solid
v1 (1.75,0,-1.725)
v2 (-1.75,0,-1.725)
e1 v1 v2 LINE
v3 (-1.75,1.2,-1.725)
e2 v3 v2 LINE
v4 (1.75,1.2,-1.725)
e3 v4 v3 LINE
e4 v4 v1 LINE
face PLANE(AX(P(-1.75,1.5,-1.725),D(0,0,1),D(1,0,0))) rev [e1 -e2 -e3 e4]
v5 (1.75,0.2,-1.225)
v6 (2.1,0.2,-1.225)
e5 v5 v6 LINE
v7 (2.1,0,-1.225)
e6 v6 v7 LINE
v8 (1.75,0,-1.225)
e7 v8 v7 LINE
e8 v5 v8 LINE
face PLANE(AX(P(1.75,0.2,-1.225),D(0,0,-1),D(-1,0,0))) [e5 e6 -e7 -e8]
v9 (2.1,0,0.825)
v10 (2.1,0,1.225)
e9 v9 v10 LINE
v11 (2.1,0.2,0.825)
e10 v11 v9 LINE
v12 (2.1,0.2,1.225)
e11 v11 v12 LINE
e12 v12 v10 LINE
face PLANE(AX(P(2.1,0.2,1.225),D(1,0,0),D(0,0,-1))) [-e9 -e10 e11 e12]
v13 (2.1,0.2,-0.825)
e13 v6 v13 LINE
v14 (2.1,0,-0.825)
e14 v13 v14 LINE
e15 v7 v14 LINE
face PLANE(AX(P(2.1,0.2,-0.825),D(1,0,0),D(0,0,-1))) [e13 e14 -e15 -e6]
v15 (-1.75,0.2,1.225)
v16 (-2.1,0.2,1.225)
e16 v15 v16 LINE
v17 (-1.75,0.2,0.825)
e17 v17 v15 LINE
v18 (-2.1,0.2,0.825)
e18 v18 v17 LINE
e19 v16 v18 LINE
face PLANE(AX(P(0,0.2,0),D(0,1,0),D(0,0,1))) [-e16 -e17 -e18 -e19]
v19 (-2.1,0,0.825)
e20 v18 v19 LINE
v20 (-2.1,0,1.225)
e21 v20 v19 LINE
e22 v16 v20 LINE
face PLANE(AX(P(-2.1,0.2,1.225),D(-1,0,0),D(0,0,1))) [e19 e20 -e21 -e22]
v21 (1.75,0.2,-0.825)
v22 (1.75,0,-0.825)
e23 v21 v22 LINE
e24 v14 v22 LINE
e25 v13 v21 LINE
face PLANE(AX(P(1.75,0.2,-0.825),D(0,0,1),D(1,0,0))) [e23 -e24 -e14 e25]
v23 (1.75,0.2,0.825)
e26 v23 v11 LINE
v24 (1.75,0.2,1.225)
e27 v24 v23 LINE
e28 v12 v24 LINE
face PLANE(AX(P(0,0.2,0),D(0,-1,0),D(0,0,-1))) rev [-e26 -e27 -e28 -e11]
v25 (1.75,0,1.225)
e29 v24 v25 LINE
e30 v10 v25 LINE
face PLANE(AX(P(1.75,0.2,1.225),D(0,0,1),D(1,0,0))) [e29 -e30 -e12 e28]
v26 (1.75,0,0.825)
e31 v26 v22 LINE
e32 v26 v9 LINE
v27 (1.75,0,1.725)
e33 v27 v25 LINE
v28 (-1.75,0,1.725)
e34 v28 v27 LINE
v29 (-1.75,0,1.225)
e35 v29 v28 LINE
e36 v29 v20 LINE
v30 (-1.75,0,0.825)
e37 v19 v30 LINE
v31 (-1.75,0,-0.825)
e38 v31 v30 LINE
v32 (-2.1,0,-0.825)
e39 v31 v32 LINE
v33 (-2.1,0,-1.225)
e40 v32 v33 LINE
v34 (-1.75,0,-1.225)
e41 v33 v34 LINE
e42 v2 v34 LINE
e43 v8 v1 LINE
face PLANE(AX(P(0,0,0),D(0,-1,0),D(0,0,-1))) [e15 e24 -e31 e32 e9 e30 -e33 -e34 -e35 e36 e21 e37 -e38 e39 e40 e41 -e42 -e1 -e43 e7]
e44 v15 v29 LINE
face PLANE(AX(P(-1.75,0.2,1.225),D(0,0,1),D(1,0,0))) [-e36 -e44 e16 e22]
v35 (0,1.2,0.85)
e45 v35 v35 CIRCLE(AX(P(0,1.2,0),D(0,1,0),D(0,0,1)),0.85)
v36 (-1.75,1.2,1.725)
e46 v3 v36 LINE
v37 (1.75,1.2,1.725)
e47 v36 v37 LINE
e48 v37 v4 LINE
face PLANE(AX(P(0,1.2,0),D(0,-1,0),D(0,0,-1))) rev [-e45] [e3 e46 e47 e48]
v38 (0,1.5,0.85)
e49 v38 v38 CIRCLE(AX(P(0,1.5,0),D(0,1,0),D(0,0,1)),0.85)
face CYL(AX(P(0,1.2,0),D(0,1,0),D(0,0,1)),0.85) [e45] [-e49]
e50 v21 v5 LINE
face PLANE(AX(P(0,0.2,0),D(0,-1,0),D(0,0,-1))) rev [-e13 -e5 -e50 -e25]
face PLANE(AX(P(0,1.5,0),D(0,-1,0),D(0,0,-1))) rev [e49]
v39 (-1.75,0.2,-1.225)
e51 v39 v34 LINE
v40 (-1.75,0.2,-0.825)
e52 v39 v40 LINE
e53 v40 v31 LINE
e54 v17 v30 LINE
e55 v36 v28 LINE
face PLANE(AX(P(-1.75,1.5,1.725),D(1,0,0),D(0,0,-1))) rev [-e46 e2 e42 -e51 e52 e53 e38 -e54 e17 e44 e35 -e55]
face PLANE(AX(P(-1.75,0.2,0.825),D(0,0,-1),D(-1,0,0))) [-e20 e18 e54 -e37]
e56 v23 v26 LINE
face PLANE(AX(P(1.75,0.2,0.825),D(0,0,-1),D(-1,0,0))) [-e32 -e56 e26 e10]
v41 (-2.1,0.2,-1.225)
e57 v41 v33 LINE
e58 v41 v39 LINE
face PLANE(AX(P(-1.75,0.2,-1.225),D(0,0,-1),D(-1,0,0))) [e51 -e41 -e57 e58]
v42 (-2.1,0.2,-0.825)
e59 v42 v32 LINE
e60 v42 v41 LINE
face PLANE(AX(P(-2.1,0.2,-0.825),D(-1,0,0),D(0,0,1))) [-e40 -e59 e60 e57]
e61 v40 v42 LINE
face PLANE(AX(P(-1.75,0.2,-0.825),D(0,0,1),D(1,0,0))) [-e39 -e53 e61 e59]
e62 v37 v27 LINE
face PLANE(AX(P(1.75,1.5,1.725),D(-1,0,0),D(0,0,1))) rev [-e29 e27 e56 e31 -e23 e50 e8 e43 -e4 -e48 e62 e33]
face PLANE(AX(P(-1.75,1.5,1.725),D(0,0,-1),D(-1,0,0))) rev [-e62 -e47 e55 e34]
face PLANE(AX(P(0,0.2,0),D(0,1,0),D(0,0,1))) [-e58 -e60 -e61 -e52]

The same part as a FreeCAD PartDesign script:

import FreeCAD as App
import Part
import Sketcher
from FreeCAD import Vector
Q = App.Units.Quantity


def add_polygon(sketch, points):
    """Adds a closed chain of lines whose ends are joined by coincident constraints."""
    first, n = sketch.GeometryCount, len(points)
    for a, b in zip(points, points[1:] + points[:1]):
        sketch.addGeometry(Part.LineSegment(App.Vector(*a, 0), App.Vector(*b, 0)), False)
    for i in range(n):
        sketch.addConstraint(Sketcher.Constraint("Coincident", first + i, 2, first + (i + 1) % n, 1))

doc = App.newDocument("Part")
params = doc.addObject("Spreadsheet::Sheet", "Params")
for row, (alias, value) in enumerate([
    ("sketch1_width", "3.5 mm"),
    ("sketch1_height", "3.45 mm"),
    ("pad1_length", "1.5 mm"),
    ("sketch2_height", "0.4 mm"),
    ("sketch2_width", "0.35 mm"),
    ("pad2_length", "0.2 mm"),
    ("sketch3_diameter", "1.7 mm"),
    ("sketch3_width", "3.5 mm"),
    ("sketch3_height", "3.45 mm"),
    ("pocket1_length", "0.3 mm"),
], start=1):
    params.set(f"A{row}", alias)
    params.set(f"B{row}", "=" + value)
    params.setAlias(f"B{row}", alias)

body = doc.addObject("PartDesign::Body", "Body")

# Sketch on XZ plane
sketch1 = doc.addObject("Sketcher::SketchObject", "Sketch")
body.addObject(sketch1)
sketch1.AttachmentSupport = (doc.XZ_Plane, [""])
sketch1.MapMode = "FlatFace"
add_polygon(sketch1, [(-1.75, -1.725), (-1.75, 1.725), (1.75, 1.725), (1.75, -1.725)])  # lines 0-3
sketch1.addConstraint([
    Sketcher.Constraint("Vertical", 0),
    Sketcher.Constraint("Horizontal", 1),
    Sketcher.Constraint("Vertical", 2),
    Sketcher.Constraint("Horizontal", 3),
    Sketcher.Constraint("Symmetric", 0, 2, 2, 2, -1, 1),
    Sketcher.Constraint("DistanceX", 1, 1, 1, 2, Q("3.5 mm")),
    Sketcher.Constraint("DistanceY", 0, 1, 0, 2, Q("3.45 mm")),
])
sketch1.setExpression("Constraints[9]", "Params.sketch1_width")
sketch1.setExpression("Constraints[10]", "Params.sketch1_height")
pad1 = doc.addObject("PartDesign::Pad", "Pad")
body.addObject(pad1)
pad1.Profile = sketch1
pad1.setExpression("Length", "Params.pad1_length")
pad1.Reversed = True

# Sketch on XZ plane
sketch2 = doc.addObject("Sketcher::SketchObject", "Sketch001")
body.addObject(sketch2)
sketch2.AttachmentSupport = (doc.XZ_Plane, [""])
sketch2.MapMode = "FlatFace"
add_polygon(sketch2, [(-1.75, 0.825), (-1.75, 1.225), (-2.1, 1.225), (-2.1, 0.825)])  # lines 0-3
add_polygon(sketch2, [(-1.75, -1.225), (-1.75, -0.825), (-2.1, -0.825), (-2.1, -1.225)])  # lines 4-7
add_polygon(sketch2, [(2.1, 0.825), (2.1, 1.225), (1.75, 1.225), (1.75, 0.825)])  # lines 8-11
add_polygon(sketch2, [(2.1, -1.225), (2.1, -0.825), (1.75, -0.825), (1.75, -1.225)])  # lines 12-15
sketch2.addConstraint([
    Sketcher.Constraint("Vertical", 0),
    Sketcher.Constraint("Horizontal", 1),
    Sketcher.Constraint("Vertical", 2),
    Sketcher.Constraint("Horizontal", 3),
    Sketcher.Constraint("Vertical", 4),
    Sketcher.Constraint("Horizontal", 5),
    Sketcher.Constraint("Vertical", 6),
    Sketcher.Constraint("Horizontal", 7),
    Sketcher.Constraint("Vertical", 8),
    Sketcher.Constraint("Horizontal", 9),
    Sketcher.Constraint("Vertical", 10),
    Sketcher.Constraint("Horizontal", 11),
    Sketcher.Constraint("Vertical", 12),
    Sketcher.Constraint("Horizontal", 13),
    Sketcher.Constraint("Vertical", 14),
    Sketcher.Constraint("Horizontal", 15),
    Sketcher.Constraint("Symmetric", 6, 2, 8, 2, -1, 1),
    Sketcher.Constraint("Symmetric", 4, 2, 10, 2, -1, 1),
    Sketcher.Constraint("Symmetric", 2, 2, 12, 2, -1, 1),
    Sketcher.Constraint("Symmetric", 0, 2, 14, 2, -1, 1),
    Sketcher.Constraint("Symmetric", 1, 2, 8, 2, -2),
    Sketcher.Constraint("Symmetric", 3, 2, 10, 2, -2),
    Sketcher.Constraint("DistanceY", 0, 1, 0, 2, Q("0.4 mm")),
    Sketcher.Constraint("DistanceX", 1, 2, 1, 1, Q("0.35 mm")),
    Sketcher.Constraint("DistanceX", 1, 2, -1, 1, Q("2.1 mm")),
    Sketcher.Constraint("DistanceY", 4, 2, 3, 2, Q("1.65 mm")),
])
sketch2.setExpression("Constraints[38]", "Params.sketch2_height")
sketch2.setExpression("Constraints[39]", "Params.sketch2_width")
pad2 = doc.addObject("PartDesign::Pad", "Pad001")
body.addObject(pad2)
pad2.Profile = sketch2
pad2.setExpression("Length", "Params.pad2_length")
pad2.Reversed = True

# Sketch on XZ plane
sketch3 = doc.addObject("Sketcher::SketchObject", "Sketch002")
body.addObject(sketch3)
sketch3.AttachmentSupport = (doc.XZ_Plane, [""])
sketch3.MapMode = "FlatFace"
sketch3.AttachmentOffset = App.Placement(Vector(0, 0, -1.5), App.Rotation())
add_polygon(sketch3, [(-1.75, -1.725), (-1.75, 1.725), (1.75, 1.725), (1.75, -1.725)])  # lines 0-3
sketch3.addGeometry(Part.Circle(Vector(0, 0, 0), Vector(0, 0, 1), 0.85), False)  # 4
sketch3.addConstraint([
    Sketcher.Constraint("Vertical", 0),
    Sketcher.Constraint("Horizontal", 1),
    Sketcher.Constraint("Vertical", 2),
    Sketcher.Constraint("Horizontal", 3),
    Sketcher.Constraint("Coincident", 4, 3, -1, 1),
    Sketcher.Constraint("Symmetric", 0, 2, 2, 2, -1, 1),
    Sketcher.Constraint("Diameter", 4, Q("1.7 mm")),
    Sketcher.Constraint("DistanceX", 1, 1, 1, 2, Q("3.5 mm")),
    Sketcher.Constraint("DistanceY", 0, 1, 0, 2, Q("3.45 mm")),
])
sketch3.setExpression("Constraints[10]", "Params.sketch3_diameter")
sketch3.setExpression("Constraints[11]", "Params.sketch3_width")
sketch3.setExpression("Constraints[12]", "Params.sketch3_height")
pocket1 = doc.addObject("PartDesign::Pocket", "Pocket")
body.addObject(pocket1)
pocket1.Profile = sketch3
pocket1.setExpression("Length", "Params.pocket1_length")
pocket1.Reversed = True

doc.recompute()
